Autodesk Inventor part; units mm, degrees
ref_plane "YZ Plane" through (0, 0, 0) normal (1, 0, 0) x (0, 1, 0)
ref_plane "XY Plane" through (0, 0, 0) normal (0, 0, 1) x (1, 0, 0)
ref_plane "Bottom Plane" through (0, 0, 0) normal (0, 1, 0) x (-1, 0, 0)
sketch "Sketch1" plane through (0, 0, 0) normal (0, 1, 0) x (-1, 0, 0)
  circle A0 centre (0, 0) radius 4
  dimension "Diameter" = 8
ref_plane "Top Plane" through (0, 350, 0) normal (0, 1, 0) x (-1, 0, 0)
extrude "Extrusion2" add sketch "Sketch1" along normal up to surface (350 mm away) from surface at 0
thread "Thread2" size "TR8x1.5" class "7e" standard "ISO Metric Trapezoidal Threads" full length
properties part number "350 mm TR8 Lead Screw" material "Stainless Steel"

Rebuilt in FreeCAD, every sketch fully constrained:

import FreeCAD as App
import Part
import Sketcher
from FreeCAD import Vector

doc = App.newDocument("Part")
body = doc.addObject("PartDesign::Body", "Body")

# Sketch on XZ plane
sketch1 = doc.addObject("Sketcher::SketchObject", "Sketch")
body.addObject(sketch1)
sketch1.AttachmentSupport = (doc.XZ_Plane, [""])
sketch1.MapMode = "FlatFace"
sketch1.addGeometry(Part.Circle(Vector(0, 0, 0), Vector(0, 0, 1), 4), False)
sketch1.addConstraint([
    Sketcher.Constraint("Coincident", 0, 3, -1, 1),
    Sketcher.Constraint("Diameter", 0, 8.0),
])
pad1 = doc.addObject("PartDesign::Pad", "Pad")
body.addObject(pad1)
pad1.Profile = sketch1
pad1.Length = 350
pad1.Reversed = True

doc.recompute()
